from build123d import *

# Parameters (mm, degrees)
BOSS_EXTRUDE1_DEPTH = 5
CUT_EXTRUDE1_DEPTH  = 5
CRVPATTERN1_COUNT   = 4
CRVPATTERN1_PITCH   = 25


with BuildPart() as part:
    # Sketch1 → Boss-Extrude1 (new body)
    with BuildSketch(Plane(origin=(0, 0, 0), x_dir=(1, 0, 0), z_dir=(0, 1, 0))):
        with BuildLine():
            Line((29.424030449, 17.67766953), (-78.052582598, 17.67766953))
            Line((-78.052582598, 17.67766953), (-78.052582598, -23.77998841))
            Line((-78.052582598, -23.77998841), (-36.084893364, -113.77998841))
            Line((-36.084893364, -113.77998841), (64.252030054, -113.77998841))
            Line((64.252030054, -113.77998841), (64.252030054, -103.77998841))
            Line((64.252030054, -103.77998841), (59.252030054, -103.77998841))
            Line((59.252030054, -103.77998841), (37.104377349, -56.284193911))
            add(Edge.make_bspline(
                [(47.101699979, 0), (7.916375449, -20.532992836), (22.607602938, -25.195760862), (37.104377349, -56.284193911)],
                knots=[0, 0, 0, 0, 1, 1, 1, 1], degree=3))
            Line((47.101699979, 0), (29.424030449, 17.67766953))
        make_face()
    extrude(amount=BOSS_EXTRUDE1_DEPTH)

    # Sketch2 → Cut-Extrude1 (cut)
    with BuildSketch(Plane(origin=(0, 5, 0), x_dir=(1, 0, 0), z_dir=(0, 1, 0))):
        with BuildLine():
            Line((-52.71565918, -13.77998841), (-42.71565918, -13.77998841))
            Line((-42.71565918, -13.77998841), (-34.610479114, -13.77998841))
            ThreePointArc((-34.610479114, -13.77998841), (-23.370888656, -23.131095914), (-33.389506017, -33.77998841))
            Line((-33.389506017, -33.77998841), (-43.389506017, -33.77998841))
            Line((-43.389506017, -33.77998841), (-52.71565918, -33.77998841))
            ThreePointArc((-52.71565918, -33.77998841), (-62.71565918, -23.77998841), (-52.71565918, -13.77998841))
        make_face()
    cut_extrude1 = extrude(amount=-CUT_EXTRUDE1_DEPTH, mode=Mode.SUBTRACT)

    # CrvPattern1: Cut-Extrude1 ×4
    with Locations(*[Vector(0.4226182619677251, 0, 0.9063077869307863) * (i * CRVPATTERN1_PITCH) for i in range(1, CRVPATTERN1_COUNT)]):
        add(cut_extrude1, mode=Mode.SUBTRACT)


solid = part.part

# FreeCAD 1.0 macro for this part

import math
import FreeCAD as App
import Part
import Sketcher

V = App.Vector
Q = App.Units.Quantity

doc = App.newDocument("Part")
body = doc.addObject("PartDesign::Body", "Body")

# Sketch on XZ plane
sketch1 = body.newObject("Sketcher::SketchObject", "Sketch")
sketch1.AttachmentSupport = (doc.getObject("XZ_Plane"), [""])
sketch1.MapMode = "FlatFace"
sketch1.addGeometry(Part.LineSegment(V(29.42403, -17.67767, 0), V(-78.052583, -17.67767, 0)), False)
sketch1.addGeometry(Part.LineSegment(V(-78.052583, -17.67767, 0), V(-78.052583, 23.779988, 0)), False)
sketch1.addGeometry(Part.LineSegment(V(-78.052583, 23.779988, 0), V(-36.084893, 113.779988, 0)), False)
sketch1.addGeometry(Part.LineSegment(V(-36.084893, 113.779988, 0), V(64.25203, 113.779988, 0)), False)
sketch1.addGeometry(Part.LineSegment(V(64.25203, 113.779988, 0), V(64.25203, 103.779988, 0)), False)
sketch1.addGeometry(Part.LineSegment(V(64.25203, 103.779988, 0), V(59.25203, 103.779988, 0)), False)
sketch1.addGeometry(Part.LineSegment(V(59.25203, 103.779988, 0), V(37.104377, 56.284194, 0)), False)
sketch1.addGeometry(Part.BSplineCurve([V(47.1017, 0, 0), V(7.916375, 20.532993, 0), V(22.607603, 25.195761, 0), V(37.104377, 56.284194, 0)], [4, 4], [0, 1], False, 3, [1, 1, 1, 1], False), False)
sketch1.addGeometry(Part.LineSegment(V(47.1017, 0, 0), V(29.42403, -17.67767, 0)), False)
sketch1.addConstraint(Sketcher.Constraint("Block", 7))
sketch1.addConstraint(Sketcher.Constraint("Coincident", 0, 2, 1, 1))
sketch1.addConstraint(Sketcher.Constraint("Coincident", 1, 2, 2, 1))
sketch1.addConstraint(Sketcher.Constraint("Coincident", 2, 2, 3, 1))
sketch1.addConstraint(Sketcher.Constraint("Coincident", 3, 2, 4, 1))
sketch1.addConstraint(Sketcher.Constraint("Coincident", 4, 2, 5, 1))
sketch1.addConstraint(Sketcher.Constraint("Coincident", 5, 2, 6, 1))
sketch1.addConstraint(Sketcher.Constraint("Coincident", 6, 2, 7, 2))
sketch1.addConstraint(Sketcher.Constraint("Coincident", 7, 1, 8, 1))
sketch1.addConstraint(Sketcher.Constraint("Coincident", 8, 2, 0, 1))
sketch1.addConstraint(Sketcher.Constraint("Horizontal", 0))
sketch1.addConstraint(Sketcher.Constraint("Vertical", 1))
sketch1.addConstraint(Sketcher.Constraint("Horizontal", 3))
sketch1.addConstraint(Sketcher.Constraint("Vertical", 4))
sketch1.addConstraint(Sketcher.Constraint("Horizontal", 5))
sketch1.addConstraint(Sketcher.Constraint("Parallel", 2, 6))
sketch1.addConstraint(Sketcher.Constraint("DistanceX", 5, 2, 5, 1, Q("5 mm")))
sketch1.addConstraint(Sketcher.Constraint("DistanceY", 4, 2, 4, 1, Q("10 mm")))
sketch1.addConstraint(Sketcher.Constraint("Angle", 2, Q("65 deg")))
sketch1.addConstraint(Sketcher.Constraint("Angle", 8, Q("-135 deg")))
sketch1.addConstraint(Sketcher.Constraint("Distance", 8, Q("25 mm")))
sketch1.addConstraint(Sketcher.Constraint("DistanceY", 1, 2, 2, 2, Q("90 mm")))
sketch1.addConstraint(Sketcher.Constraint("DistanceX", 8, 2, 5, 2, Q("29.828 mm")))
sketch1.addConstraint(Sketcher.Constraint("DistanceX", 0, 2, 0, 1, Q("107.476613 mm")))
pad1 = body.newObject("PartDesign::Pad", "Pad")
pad1.Profile = sketch1
pad1.Length = 5
pad1.Reversed = True

# Sketch on XZ plane
sketch2 = body.newObject("Sketcher::SketchObject", "Sketch001")
sketch2.AttachmentSupport = (doc.getObject("XZ_Plane"), [""])
sketch2.MapMode = "FlatFace"
sketch2.AttachmentOffset = App.Placement(V(0, 0, -5), App.Rotation())
sketch2.addGeometry(Part.LineSegment(V(-35, 14, 0), V(-53, 14, 0)), False)
sketch2.addGeometry(Part.ArcOfCircle(Part.Circle(V(-53, 24, 0), V(0, 0, 1), 10), math.radians(90), math.radians(270)), False)
sketch2.addGeometry(Part.LineSegment(V(-53, 34, 0), V(-33, 34, 0)), False)
sketch2.addGeometry(Part.ArcOfCircle(Part.Circle(V(-33, 24, 0), V(0, 0, 1), 10), math.radians(-97), math.radians(90)), False)
sketch2.addConstraint(Sketcher.Constraint("Tangent", 0, 2, 1, 2))
sketch2.addConstraint(Sketcher.Constraint("Tangent", 1, 1, 2, 1))
sketch2.addConstraint(Sketcher.Constraint("Tangent", 2, 2, 3, 2))
sketch2.addConstraint(Sketcher.Constraint("Coincident", 3, 1, 0, 1))
sketch2.addConstraint(Sketcher.Constraint("Horizontal", 0))
sketch2.addConstraint(Sketcher.Constraint("Horizontal", 2))
sketch2.addConstraint(Sketcher.Constraint("Radius", 1, Q("10 mm")))
sketch2.addConstraint(Sketcher.Constraint("Radius", 3, Q("10.037269 mm")))
sketch2.addConstraint(Sketcher.Constraint("DistanceX", 0, 2, 0, 1, Q("18.10518 mm")))
sketch2.addConstraint(Sketcher.Constraint("DistanceX", 1, 3, -1, 1, Q("52.715659 mm")))
sketch2.addConstraint(Sketcher.Constraint("DistanceY", -1, 1, 1, 3, Q("23.779988 mm")))
pocket1 = body.newObject("PartDesign::Pocket", "Pocket")
pocket1.Profile = sketch2
pocket1.Length = 5
pocket1.Reversed = True
doc.recompute()

datumline = body.newObject("PartDesign::Line", "DatumLine")
datumline.Placement = App.Placement(V(0, 0, 0), App.Rotation(V(0, 0, 1), V(0.422618262, 0, 0.906307787)))
linearpattern = body.newObject("PartDesign::LinearPattern", "LinearPattern")
linearpattern.Originals = [pocket1]
linearpattern.Direction = (datumline, [""])
linearpattern.Mode = "offset"
linearpattern.Offset = 25
linearpattern.Occurrences = 4
body.Tip = linearpattern

doc.recompute()
